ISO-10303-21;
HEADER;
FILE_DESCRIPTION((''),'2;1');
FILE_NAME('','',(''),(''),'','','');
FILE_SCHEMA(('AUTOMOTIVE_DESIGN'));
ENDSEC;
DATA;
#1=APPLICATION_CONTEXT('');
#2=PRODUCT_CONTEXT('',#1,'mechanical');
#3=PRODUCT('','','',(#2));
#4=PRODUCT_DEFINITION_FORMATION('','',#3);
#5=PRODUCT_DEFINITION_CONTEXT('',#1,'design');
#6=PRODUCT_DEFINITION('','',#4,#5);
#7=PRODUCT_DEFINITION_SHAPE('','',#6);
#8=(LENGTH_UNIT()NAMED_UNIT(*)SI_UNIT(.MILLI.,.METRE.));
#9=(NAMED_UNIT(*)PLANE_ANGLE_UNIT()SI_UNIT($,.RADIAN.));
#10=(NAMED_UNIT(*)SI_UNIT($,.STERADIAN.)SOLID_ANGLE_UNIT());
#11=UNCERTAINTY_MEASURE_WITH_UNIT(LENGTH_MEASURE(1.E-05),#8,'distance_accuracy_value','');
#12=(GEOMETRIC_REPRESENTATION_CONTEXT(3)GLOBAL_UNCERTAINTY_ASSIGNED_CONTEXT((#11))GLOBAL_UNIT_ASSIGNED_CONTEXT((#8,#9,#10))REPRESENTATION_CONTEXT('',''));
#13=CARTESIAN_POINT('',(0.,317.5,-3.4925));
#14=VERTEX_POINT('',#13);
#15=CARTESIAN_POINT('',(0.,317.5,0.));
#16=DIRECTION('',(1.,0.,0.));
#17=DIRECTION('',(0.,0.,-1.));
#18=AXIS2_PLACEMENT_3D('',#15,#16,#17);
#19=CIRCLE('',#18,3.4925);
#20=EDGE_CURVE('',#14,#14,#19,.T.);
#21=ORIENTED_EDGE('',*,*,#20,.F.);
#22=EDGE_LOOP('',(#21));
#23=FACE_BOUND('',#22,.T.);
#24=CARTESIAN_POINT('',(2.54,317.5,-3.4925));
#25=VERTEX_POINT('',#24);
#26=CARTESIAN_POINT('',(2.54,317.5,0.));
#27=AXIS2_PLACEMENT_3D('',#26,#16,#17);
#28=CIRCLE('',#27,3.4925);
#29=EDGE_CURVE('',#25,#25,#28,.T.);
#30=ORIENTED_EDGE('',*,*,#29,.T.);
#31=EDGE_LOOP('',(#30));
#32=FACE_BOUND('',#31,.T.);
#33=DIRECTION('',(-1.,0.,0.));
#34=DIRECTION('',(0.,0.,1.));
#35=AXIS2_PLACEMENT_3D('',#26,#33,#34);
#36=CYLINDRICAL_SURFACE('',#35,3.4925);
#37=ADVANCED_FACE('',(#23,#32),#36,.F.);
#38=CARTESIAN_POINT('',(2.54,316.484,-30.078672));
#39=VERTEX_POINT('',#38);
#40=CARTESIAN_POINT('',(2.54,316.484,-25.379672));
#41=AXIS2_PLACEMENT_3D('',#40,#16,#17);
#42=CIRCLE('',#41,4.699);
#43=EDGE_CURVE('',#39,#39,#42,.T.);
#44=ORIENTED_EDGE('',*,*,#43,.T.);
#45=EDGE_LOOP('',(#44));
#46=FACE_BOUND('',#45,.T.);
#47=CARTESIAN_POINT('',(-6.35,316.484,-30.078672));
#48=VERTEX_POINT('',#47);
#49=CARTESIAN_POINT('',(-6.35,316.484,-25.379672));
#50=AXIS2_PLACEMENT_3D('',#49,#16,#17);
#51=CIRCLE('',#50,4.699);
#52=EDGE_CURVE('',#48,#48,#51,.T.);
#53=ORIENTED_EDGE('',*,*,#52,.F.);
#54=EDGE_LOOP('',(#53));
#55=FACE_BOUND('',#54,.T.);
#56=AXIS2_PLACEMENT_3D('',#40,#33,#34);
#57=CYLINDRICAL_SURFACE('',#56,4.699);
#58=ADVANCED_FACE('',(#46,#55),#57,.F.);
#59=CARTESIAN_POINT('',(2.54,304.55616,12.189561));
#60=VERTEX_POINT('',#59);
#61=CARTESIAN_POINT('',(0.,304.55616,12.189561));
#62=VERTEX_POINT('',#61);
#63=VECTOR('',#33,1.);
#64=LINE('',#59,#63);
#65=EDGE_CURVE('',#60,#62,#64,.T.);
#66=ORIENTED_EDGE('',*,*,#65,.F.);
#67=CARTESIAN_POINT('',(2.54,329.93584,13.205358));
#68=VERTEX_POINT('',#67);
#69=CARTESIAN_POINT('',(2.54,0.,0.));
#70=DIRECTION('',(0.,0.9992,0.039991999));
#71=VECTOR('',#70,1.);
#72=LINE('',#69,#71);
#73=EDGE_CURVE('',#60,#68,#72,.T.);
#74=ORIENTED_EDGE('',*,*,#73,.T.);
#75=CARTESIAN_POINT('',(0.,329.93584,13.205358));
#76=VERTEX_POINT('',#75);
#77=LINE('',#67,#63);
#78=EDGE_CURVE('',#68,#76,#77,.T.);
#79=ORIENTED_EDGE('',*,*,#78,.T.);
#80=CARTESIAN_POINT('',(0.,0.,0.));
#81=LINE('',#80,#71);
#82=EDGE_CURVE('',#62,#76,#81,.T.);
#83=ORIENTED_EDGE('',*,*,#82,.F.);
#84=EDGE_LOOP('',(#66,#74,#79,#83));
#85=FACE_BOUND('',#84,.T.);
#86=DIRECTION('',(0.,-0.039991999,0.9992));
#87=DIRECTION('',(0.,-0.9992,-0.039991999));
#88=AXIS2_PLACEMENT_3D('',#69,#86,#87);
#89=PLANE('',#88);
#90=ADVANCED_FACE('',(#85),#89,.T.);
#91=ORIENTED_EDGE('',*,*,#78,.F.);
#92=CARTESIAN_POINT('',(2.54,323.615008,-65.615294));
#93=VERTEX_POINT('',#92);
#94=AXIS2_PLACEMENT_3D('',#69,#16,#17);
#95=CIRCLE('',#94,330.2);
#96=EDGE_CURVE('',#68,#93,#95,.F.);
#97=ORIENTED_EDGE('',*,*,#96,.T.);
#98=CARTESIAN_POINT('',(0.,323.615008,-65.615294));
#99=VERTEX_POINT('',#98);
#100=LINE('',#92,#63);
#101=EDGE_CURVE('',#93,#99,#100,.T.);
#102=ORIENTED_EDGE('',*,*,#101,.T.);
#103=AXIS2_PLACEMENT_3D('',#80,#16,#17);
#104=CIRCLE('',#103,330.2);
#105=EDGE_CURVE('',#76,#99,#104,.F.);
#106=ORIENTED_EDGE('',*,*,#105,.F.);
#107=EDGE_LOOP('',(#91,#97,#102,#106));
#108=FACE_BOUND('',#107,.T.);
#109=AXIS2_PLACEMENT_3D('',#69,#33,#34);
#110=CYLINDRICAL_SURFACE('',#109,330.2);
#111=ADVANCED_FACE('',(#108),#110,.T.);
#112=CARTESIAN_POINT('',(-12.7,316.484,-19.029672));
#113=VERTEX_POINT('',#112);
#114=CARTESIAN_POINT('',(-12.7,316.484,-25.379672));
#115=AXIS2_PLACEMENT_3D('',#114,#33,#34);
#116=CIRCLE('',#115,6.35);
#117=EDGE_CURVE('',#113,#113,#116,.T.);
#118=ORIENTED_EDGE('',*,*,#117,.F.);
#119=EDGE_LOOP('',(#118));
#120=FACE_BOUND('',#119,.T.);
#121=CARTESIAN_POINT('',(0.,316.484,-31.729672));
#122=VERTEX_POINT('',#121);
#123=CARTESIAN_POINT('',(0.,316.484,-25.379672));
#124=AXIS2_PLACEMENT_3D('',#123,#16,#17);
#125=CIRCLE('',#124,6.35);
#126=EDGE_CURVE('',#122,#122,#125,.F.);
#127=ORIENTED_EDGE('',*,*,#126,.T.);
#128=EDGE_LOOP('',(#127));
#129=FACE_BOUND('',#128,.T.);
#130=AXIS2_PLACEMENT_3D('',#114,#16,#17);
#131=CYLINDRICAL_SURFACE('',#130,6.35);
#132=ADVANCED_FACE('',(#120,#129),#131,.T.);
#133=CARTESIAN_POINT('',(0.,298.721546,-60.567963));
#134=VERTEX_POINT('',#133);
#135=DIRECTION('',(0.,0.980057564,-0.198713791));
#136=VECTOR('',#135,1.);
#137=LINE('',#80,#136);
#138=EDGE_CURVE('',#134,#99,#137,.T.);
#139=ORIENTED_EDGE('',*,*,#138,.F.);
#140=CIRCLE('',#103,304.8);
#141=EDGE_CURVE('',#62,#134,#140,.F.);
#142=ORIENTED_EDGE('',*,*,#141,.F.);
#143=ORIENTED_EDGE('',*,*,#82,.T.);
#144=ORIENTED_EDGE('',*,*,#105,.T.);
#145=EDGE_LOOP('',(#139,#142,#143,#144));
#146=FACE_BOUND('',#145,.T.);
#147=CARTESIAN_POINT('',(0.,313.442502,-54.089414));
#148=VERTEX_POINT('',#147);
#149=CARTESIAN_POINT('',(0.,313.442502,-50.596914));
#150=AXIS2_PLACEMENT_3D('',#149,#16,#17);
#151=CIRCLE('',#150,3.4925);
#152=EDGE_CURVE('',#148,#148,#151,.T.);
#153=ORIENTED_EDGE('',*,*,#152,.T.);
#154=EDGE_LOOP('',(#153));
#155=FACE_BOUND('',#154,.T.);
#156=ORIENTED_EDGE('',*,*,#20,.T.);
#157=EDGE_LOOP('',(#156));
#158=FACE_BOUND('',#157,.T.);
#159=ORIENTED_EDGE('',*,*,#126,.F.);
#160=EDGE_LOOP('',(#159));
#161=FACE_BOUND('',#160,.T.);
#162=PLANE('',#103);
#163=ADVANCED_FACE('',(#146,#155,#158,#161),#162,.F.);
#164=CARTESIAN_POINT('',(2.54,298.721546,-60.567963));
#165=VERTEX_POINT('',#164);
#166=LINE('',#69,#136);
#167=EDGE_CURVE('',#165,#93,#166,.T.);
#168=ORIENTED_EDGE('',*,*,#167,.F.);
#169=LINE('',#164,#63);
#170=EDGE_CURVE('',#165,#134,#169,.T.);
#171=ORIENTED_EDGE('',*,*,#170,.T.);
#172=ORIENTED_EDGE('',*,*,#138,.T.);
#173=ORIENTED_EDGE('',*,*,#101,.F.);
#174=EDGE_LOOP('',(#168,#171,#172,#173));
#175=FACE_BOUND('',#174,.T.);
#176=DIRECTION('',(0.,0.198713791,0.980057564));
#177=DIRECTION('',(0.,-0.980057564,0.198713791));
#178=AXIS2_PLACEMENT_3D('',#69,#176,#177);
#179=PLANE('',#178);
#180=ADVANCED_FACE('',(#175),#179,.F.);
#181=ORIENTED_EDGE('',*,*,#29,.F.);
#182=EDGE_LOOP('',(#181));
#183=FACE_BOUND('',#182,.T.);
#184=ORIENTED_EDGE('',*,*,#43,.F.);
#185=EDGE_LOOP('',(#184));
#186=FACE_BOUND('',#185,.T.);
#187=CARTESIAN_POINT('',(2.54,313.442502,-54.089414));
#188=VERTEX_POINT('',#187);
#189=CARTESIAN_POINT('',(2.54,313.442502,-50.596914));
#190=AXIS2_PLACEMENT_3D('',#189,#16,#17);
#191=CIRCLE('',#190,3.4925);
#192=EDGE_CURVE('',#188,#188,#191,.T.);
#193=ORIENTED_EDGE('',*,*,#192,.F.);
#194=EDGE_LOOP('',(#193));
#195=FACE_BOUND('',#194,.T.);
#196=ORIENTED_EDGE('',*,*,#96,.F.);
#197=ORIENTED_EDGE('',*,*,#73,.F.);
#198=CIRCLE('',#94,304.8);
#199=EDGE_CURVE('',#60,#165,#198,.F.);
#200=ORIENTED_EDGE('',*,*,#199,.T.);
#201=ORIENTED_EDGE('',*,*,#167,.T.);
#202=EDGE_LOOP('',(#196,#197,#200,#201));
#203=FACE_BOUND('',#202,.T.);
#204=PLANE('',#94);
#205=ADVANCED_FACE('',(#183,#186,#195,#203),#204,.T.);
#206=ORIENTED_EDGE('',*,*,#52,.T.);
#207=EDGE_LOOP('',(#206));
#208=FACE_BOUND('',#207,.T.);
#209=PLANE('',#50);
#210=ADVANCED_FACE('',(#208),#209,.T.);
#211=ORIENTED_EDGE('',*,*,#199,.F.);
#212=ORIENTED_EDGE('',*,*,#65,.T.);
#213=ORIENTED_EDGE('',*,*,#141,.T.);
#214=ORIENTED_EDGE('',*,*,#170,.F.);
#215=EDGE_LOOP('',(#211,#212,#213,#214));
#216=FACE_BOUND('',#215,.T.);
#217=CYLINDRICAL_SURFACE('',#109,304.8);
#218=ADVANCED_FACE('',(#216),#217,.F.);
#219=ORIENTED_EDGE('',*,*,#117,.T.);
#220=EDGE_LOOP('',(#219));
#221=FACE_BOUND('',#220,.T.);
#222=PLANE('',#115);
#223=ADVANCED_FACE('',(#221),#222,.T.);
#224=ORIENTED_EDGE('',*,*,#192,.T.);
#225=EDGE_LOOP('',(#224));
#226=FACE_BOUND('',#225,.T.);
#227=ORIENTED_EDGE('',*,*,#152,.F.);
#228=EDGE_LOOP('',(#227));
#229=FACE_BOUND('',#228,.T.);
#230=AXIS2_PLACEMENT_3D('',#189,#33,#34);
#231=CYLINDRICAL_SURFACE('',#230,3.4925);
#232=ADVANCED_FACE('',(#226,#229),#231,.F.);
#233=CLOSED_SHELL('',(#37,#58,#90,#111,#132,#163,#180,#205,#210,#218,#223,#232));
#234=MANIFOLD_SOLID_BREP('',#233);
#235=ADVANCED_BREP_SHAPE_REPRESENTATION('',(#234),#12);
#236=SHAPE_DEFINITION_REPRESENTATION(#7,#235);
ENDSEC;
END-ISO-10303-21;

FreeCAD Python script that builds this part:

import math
import FreeCAD as App
import Part
import Sketcher
Q = App.Units.Quantity

doc = App.newDocument("Part")
body = doc.addObject("PartDesign::Body", "Body")

# Sketch on YZ plane
sketch1 = body.newObject("Sketcher::SketchObject", "Sketch")
sketch1.AttachmentSupport = (doc.getObject("YZ_Plane"), [""])
sketch1.MapMode = "FlatFace"
sketch1.addGeometry([
    Part.LineSegment(App.Vector(329.9, 13.2, 0), App.Vector(304.6, 12.2, 0)),  # 0
    Part.ArcOfCircle(Part.Circle(App.Vector(0, 0, 0), App.Vector(0, 0, 1), 304.8), math.radians(-11.46), math.radians(2.29)),  # 1
    Part.LineSegment(App.Vector(298.7, -60.6, 0), App.Vector(323.6, -65.6, 0)),  # 2
    Part.ArcOfCircle(Part.Circle(App.Vector(0, 0, 0), App.Vector(0, 0, 1), 330.2), math.radians(-11.46), math.radians(2.29)),  # 3
    Part.Circle(App.Vector(313.4, -50.6, 0), App.Vector(0, 0, 1), 3.5),  # 4
    Part.Circle(App.Vector(316.5, -25.4, 0), App.Vector(0, 0, 1), 4.7),  # 5
    Part.Circle(App.Vector(317.5, 0, 0), App.Vector(0, 0, 1), 3.5),  # 6
], False)
sketch1.addConstraint([
    Sketcher.Constraint("Coincident", 0, 2, 1, 2),
    Sketcher.Constraint("Coincident", 1, 1, 2, 1),
    Sketcher.Constraint("Coincident", 2, 2, 3, 1),
    Sketcher.Constraint("Coincident", 3, 2, 0, 1),
    Sketcher.Constraint("Coincident", 1, 3, -1, 1),
    Sketcher.Constraint("Coincident", 3, 3, -1, 1),
    Sketcher.Constraint("Equal", 4, 6),
    Sketcher.Constraint("PointOnObject", 6, 3, -1),
    Sketcher.Constraint("Radius", 1, Q("12 in")),
    Sketcher.Constraint("Radius", 3, Q("13 in")),
    Sketcher.Constraint("Diameter", 5, Q("0.37 in")),
    Sketcher.Constraint("Diameter", 4, Q("0.275 in")),
    Sketcher.Constraint("DistanceX", -1, 1, 6, 3, Q("12.5 in")),
    Sketcher.Constraint("DistanceX", -1, 1, 5, 3, Q("12.46 in")),
    Sketcher.Constraint("DistanceX", -1, 1, 0, 2, Q("11.9904 in")),
    Sketcher.Constraint("DistanceX", -1, 1, 3, 2, Q("12.9896 in")),
    Sketcher.Constraint("DistanceY", 5, 3, -1, 1, Q("25.379672 mm")),
    Sketcher.Constraint("DistanceY", 4, 3, 5, 3, Q("25.217242 mm")),
    Sketcher.Constraint("DistanceY", 1, 1, 4, 3, Q("9.97105 mm")),
    Sketcher.Constraint("DistanceY", 2, 2, 4, 3, Q("15.01838 mm")),
    Sketcher.Constraint("DistanceX", -1, 1, 4, 3, Q("313.442502 mm")),
])
pad1 = body.newObject("PartDesign::Pad", "Pad")
pad1.Profile = sketch1
pad1.Length = Q("0.1 in")

# Sketch on YZ plane
sketch2 = body.newObject("Sketcher::SketchObject", "Sketch001")
sketch2.AttachmentSupport = (doc.getObject("YZ_Plane"), [""])
sketch2.MapMode = "FlatFace"
sketch2.addGeometry(Part.Circle(App.Vector(316, -25, 0), App.Vector(0, 0, 1), 6), False)
sketch2.addConstraint([
    Sketcher.Constraint("Diameter", 0, Q("0.5 in")),
    Sketcher.Constraint("DistanceX", -1, 1, 0, 3, Q("12.46 in")),
    Sketcher.Constraint("DistanceY", 0, 3, -1, 1, Q("25.379672 mm")),
])
pad2 = body.newObject("PartDesign::Pad", "Pad001")
pad2.Profile = sketch2
pad2.Length = Q("0.5 in")
pad2.Reversed = True

# Sketch on YZ plane
sketch3 = body.newObject("Sketcher::SketchObject", "Sketch002")
sketch3.AttachmentSupport = (doc.getObject("YZ_Plane"), [""])
sketch3.MapMode = "FlatFace"
sketch3.addGeometry(Part.Circle(App.Vector(316.5, -25.4, 0), App.Vector(0, 0, 1), 4.7), False)
sketch3.addConstraint([
    Sketcher.Constraint("Diameter", 0, Q("0.37 in")),
    Sketcher.Constraint("DistanceX", -1, 1, 0, 3, Q("12.46 in")),
    Sketcher.Constraint("DistanceY", 0, 3, -1, 1, Q("25.379672 mm")),
])
pocket1 = body.newObject("PartDesign::Pocket", "Pocket")
pocket1.Profile = sketch3
pocket1.Length = Q("0.25 in")

doc.recompute()
